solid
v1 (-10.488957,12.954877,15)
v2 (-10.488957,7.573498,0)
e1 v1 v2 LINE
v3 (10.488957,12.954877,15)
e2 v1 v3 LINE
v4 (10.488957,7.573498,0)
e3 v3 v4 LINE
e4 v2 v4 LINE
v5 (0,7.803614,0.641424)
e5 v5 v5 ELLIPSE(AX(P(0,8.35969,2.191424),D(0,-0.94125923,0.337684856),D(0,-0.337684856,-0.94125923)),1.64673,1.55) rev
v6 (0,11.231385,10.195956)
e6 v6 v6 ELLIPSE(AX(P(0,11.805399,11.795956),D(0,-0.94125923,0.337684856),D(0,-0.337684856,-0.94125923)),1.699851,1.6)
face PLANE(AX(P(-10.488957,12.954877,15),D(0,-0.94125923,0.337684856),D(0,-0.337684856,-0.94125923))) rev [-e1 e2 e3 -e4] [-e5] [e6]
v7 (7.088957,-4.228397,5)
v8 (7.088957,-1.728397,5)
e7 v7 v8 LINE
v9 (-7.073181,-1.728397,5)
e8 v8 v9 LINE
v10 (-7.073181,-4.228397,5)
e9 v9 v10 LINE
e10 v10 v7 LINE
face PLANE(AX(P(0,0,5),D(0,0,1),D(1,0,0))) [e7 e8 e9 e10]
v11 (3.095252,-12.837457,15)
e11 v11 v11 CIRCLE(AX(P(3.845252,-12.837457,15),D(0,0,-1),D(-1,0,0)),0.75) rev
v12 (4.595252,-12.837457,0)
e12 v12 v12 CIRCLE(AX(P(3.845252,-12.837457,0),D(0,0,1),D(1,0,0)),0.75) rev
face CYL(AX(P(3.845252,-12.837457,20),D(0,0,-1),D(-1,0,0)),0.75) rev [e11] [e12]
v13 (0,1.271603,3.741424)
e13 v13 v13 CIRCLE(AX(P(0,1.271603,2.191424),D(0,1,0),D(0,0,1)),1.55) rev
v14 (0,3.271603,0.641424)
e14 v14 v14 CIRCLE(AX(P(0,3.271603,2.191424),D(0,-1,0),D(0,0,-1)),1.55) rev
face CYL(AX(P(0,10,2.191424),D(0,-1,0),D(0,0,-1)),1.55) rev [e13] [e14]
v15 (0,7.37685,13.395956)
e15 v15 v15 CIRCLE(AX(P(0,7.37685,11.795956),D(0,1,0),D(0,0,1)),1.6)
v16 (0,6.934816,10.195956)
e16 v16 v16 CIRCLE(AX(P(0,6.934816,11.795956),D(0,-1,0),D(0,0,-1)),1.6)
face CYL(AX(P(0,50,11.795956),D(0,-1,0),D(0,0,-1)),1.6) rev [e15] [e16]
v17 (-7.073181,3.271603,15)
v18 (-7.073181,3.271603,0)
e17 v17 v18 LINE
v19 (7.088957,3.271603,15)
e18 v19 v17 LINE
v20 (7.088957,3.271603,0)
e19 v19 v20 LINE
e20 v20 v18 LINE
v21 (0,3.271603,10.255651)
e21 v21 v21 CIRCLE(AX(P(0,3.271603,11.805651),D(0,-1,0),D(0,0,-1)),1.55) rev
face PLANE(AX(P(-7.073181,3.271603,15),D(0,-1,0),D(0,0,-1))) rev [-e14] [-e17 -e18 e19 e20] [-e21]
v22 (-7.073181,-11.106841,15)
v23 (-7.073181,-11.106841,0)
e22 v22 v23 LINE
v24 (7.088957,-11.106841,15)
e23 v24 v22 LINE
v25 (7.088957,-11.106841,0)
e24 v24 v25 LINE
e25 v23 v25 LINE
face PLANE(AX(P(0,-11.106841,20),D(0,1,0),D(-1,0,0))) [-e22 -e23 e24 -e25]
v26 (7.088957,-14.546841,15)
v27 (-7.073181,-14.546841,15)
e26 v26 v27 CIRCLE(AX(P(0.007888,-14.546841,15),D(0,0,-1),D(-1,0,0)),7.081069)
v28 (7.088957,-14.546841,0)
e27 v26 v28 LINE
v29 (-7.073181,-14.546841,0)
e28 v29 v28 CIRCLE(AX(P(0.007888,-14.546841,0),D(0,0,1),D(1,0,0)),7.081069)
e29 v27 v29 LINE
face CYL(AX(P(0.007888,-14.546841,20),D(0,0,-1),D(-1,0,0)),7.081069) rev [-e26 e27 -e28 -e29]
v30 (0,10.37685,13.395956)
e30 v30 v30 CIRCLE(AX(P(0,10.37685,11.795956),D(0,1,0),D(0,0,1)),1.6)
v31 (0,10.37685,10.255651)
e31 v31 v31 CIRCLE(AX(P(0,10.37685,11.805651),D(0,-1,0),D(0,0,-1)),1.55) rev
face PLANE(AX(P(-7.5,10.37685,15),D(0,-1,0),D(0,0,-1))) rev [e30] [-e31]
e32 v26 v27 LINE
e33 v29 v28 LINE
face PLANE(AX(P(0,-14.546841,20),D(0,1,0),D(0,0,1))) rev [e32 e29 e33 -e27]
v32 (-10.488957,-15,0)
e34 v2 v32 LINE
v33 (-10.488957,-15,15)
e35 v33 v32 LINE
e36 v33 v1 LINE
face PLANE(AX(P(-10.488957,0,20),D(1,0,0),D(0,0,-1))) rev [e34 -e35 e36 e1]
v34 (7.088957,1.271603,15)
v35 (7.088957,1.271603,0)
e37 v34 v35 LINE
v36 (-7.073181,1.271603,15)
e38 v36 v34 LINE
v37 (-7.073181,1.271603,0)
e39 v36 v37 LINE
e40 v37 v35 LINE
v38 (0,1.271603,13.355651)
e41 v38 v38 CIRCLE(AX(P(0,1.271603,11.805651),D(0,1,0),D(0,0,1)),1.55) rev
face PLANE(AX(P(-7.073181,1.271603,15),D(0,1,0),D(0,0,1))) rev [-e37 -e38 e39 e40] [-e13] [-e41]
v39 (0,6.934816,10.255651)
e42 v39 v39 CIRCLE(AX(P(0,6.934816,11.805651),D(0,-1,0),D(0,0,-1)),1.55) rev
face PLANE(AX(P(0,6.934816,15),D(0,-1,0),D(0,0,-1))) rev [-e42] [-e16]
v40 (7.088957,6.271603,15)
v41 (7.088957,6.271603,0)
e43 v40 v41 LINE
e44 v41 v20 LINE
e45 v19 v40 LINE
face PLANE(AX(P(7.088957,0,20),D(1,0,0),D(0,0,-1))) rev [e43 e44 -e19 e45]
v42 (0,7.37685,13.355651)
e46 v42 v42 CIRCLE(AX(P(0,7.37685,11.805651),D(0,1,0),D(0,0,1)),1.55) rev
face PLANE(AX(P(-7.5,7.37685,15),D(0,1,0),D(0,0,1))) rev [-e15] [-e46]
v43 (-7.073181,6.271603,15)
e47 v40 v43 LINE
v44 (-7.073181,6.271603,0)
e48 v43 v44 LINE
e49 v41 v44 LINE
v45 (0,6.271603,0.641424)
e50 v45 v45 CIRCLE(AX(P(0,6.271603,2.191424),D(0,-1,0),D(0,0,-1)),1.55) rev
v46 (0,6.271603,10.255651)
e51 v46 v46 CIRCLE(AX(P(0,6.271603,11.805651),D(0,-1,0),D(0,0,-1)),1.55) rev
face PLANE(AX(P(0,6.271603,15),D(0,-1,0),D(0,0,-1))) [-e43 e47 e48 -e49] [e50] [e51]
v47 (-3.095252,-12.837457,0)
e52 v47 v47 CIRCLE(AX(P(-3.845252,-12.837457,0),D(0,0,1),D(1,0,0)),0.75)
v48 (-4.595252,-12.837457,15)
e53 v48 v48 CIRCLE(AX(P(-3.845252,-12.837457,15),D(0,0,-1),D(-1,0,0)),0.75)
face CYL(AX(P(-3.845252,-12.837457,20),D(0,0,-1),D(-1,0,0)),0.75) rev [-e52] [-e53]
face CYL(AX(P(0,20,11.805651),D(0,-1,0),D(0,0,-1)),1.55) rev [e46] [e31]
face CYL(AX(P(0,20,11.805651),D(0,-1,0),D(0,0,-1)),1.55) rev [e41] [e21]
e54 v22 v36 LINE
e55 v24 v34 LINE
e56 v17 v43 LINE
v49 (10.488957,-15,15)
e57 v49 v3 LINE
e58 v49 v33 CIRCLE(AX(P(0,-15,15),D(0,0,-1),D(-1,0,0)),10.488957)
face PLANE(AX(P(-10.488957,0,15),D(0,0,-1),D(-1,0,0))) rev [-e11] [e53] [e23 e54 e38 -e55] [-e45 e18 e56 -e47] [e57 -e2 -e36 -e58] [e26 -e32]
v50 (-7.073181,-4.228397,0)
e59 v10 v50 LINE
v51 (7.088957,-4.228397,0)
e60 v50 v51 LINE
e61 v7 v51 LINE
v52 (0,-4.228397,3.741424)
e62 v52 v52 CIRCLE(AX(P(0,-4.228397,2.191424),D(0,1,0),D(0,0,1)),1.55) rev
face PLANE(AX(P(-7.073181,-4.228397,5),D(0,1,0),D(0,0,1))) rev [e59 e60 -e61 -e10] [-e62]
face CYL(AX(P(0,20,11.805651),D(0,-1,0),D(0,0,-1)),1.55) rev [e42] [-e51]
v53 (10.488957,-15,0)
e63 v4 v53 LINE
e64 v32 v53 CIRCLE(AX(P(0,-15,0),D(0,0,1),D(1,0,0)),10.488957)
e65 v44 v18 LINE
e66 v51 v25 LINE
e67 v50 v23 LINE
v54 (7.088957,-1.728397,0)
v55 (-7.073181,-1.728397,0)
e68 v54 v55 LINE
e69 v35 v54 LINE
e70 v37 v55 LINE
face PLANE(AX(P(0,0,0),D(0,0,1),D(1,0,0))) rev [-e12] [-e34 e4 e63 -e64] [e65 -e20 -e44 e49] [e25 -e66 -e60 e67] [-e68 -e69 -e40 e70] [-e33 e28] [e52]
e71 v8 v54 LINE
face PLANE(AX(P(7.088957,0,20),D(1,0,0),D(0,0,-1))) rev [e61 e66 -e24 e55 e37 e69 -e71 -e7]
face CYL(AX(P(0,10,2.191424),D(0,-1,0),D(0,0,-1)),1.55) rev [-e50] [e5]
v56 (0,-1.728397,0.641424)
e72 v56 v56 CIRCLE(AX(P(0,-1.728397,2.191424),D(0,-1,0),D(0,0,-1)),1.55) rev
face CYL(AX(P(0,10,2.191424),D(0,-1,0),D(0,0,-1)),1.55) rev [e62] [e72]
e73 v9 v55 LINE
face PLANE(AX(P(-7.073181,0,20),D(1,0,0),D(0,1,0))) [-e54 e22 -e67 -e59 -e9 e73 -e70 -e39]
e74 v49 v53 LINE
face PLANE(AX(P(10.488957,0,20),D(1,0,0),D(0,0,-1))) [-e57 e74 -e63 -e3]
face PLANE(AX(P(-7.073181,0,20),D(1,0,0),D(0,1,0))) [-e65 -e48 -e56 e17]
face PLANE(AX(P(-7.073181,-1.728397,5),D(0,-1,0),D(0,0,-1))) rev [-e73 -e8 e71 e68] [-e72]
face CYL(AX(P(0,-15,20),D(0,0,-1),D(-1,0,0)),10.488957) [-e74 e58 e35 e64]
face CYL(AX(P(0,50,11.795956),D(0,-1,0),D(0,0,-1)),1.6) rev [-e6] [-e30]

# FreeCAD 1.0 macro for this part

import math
import FreeCAD as App
import Part
import Sketcher

V = App.Vector


def add_polygon(sketch, points):
    """Adds a closed chain of lines whose ends are joined by coincident constraints."""
    first, n = sketch.GeometryCount, len(points)
    for a, b in zip(points, points[1:] + points[:1]):
        sketch.addGeometry(Part.LineSegment(App.Vector(*a, 0), App.Vector(*b, 0)), False)
    for i in range(n):
        sketch.addConstraint(Sketcher.Constraint("Coincident", first + i, 2, first + (i + 1) % n, 1))

doc = App.newDocument("Part")
params = doc.addObject("Spreadsheet::Sheet", "Params")
for row, (alias, value) in enumerate([
    ("sketch1_diameter", "1.5 mm"),
    ("sketch1_height", "15 mm"),
    ("pad1_length", "20 mm"),
    ("sketch2_height", "20 mm"),
    ("pad2_length", "23 mm"),
    ("pocket1_length", "23 mm"),
    ("pad3_length", "20 mm"),
    ("sketch5_diameter", "3.2 mm"),
    ("pocket2_length", "50 mm"),
    ("sketch6_width", "15 mm"),
    ("sketch6_height", "3 mm"),
    ("pocket3_length", "50 mm"),
    ("sketch7_width", "8 mm"),
    ("sketch7_height", "3.4 mm"),
    ("pad4_length", "20 mm"),
    ("sketch8_radius", "4 mm"),
    ("pocket4_length", "15 mm"),
    ("sketch9_radius", "1.5 mm"),
    ("sketch9_height", "10 mm"),
    ("pocket5_length", "15 mm"),
    ("sketch10_radius", "4 mm"),
    ("pad5_length", "15 mm"),
    ("sketch15_height", "2 mm"),
    ("pad6_length", "15 mm"),
    ("sketch16_width", "15 mm"),
    ("sketch16_height", "3 mm"),
    ("pad7_length", "15 mm"),
    ("sketch18_diameter", "3.1 mm"),
    ("pocket11_length", "20 mm"),
    ("sketch20_height", "2.5 mm"),
    ("pad8_length", "5 mm"),
    ("sketch21_diameter", "3.1 mm"),
    ("pocket13_length", "20 mm"),
], start=1):
    params.set(f"A{row}", alias)
    params.set(f"B{row}", "=" + value)
    params.setAlias(f"B{row}", alias)

body = doc.addObject("PartDesign::Body", "Body")

# Sketch on XY plane
sketch1 = body.newObject("Sketcher::SketchObject", "Sketch")
sketch1.AttachmentSupport = (doc.getObject("XY_Plane"), [""])
sketch1.MapMode = "FlatFace"
sketch1.addGeometry(Part.LineSegment(V(-10.5, 0, 0), V(-10.5, -15, 0)), False)  # 0
sketch1.addGeometry(Part.ArcOfCircle(Part.Circle(V(0, -15, 0), V(0, 0, 1), 10.5), math.radians(180), math.radians(360)), False)  # 1
sketch1.addGeometry(Part.LineSegment(V(10.5, -15, 0), V(10.5, 0, 0)), False)  # 2
sketch1.addGeometry(Part.ArcOfCircle(Part.Circle(V(0, 0, 0), V(0, 0, 1), 10.5), math.radians(0), math.radians(180)), False)  # 3
sketch1.addGeometry(Part.Circle(V(-3.8, -12.8, 0), V(0, 0, 1), 0.8), False)  # 4
sketch1.addGeometry(Part.ArcOfCircle(Part.Circle(V(0, -14.5, 0), V(0, 0, 1), 7.1), math.radians(180), math.radians(360)), False)  # 5
sketch1.addGeometry(Part.LineSegment(V(-7.1, -14.5, 0), V(7.1, -14.5, 0)), False)  # 6
add_polygon(sketch1, [(7.1, -6.2), (7.1, -11.1), (-7.1, -11.1), (-7.1, -6.2)])  # lines 7-10
sketch1.addGeometry(Part.Circle(V(3.8, -12.8, 0), V(0, 0, 1), 0.8), False)  # 11
sketch1.addGeometry(Part.LineSegment(V(7.1, -0.4, 0), V(7.1, -2.8, 0)), False)  # 12
sketch1.addGeometry(Part.LineSegment(V(7.1, -2.8, 0), V(-7.1, -2.8, 0)), False)  # 13
sketch1.addGeometry(Part.LineSegment(V(-7.1, -2.8, 0), V(-7.1, -0.4, 0)), False)  # 14
sketch1.addGeometry(Part.ArcOfCircle(Part.Circle(V(0, -0.4, 0), V(0, 0, 1), 7.1), math.radians(0), math.radians(180)), False)  # 15
sketch1.addConstraint([
    Sketcher.Constraint("Tangent", 0, 2, 1, 1),
    Sketcher.Constraint("Tangent", 1, 2, 2, 1),
    Sketcher.Constraint("Tangent", 2, 2, 3, 1),
    Sketcher.Constraint("Tangent", 3, 2, 0, 1),
    Sketcher.Constraint("Coincident", 5, 1, 6, 1),
    Sketcher.Constraint("Coincident", 6, 2, 5, 2),
    Sketcher.Constraint("Coincident", 12, 2, 13, 1),
    Sketcher.Constraint("Coincident", 13, 2, 14, 1),
    Sketcher.Constraint("Tangent", 14, 2, 15, 2),
    Sketcher.Constraint("Tangent", 15, 1, 12, 1),
    Sketcher.Constraint("Vertical", 0),
    Sketcher.Constraint("Vertical", 2),
    Sketcher.Constraint("Horizontal", 6),
    Sketcher.Constraint("Vertical", 7),
    Sketcher.Constraint("Horizontal", 8),
    Sketcher.Constraint("Vertical", 9),
    Sketcher.Constraint("Horizontal", 10),
    Sketcher.Constraint("Vertical", 12),
    Sketcher.Constraint("Horizontal", 13),
    Sketcher.Constraint("Vertical", 14),
    Sketcher.Constraint("Coincident", 3, 3, -1, 1),
    Sketcher.Constraint("Equal", 4, 11),
    Sketcher.Constraint("Equal", 5, 15),
    Sketcher.Constraint("Symmetric", 4, 3, 11, 3, -2),
    Sketcher.Constraint("Vertical", 5, 3, 15, 3),
    Sketcher.Constraint("Vertical", 6, 2, 7, 2),
    Sketcher.Constraint("Vertical", 5, 1, 8, 2),
    Sketcher.Constraint("Diameter", 4, 1.5),
    Sketcher.Constraint("DistanceY", 0, 2, 0, 1, 15.0),
    Sketcher.Constraint("DistanceX", 6, 2, 1, 2, 3.4),
    Sketcher.Constraint("DistanceY", 10, 2, 12, 2, 3.4),
    Sketcher.Constraint("Radius", 5, 7.081069),
    Sketcher.Constraint("DistanceY", 6, 2, 7, 2, 3.44),
    Sketcher.Constraint("DistanceY", 5, 3, 7, 2, 3.44),
    Sketcher.Constraint("Radius", 1, 10.488957),
    Sketcher.Constraint("DistanceY", 7, 2, 7, 1, 4.929512),
    Sketcher.Constraint("DistanceY", 12, 2, 12, 1, 2.344077),
    Sketcher.Constraint("DistanceY", 5, 3, -1, 1, 14.546841),
    Sketcher.Constraint("DistanceX", 4, 3, 5, 3, 3.85314),
    Sketcher.Constraint("DistanceY", 4, 3, -1, 1, 12.837457),
])
sketch1.setExpression("Constraints[31]", "Params.sketch1_diameter")
sketch1.setExpression("Constraints[32]", "Params.sketch1_height")
pad1 = body.newObject("PartDesign::Pad", "Pad")
pad1.Profile = sketch1
pad1.setExpression("Length", "Params.pad1_length")
body2 = doc.addObject("PartDesign::Body", "Body001")

# Sketch on YZ plane
sketch2 = body2.newObject("Sketcher::SketchObject", "Sketch001")
sketch2.AttachmentSupport = (doc.getObject("YZ_Plane001"), [""])
sketch2.MapMode = "FlatFace"
sketch2.AttachmentOffset = App.Placement(V(0, 0, -11), App.Rotation())
add_polygon(sketch2, [(13.8, 20), (10.5, 20), (10.5, 0)])  # lines 0-2
sketch2.addConstraint([
    Sketcher.Constraint("Horizontal", 0),
    Sketcher.Constraint("Vertical", 1),
    Sketcher.Constraint("PointOnObject", 1, 2, -1),
    Sketcher.Constraint("DistanceY", 1, 2, 1, 1, 20.0),
    Sketcher.Constraint("DistanceX", 0, 2, 0, 1, 3.287893),
    Sketcher.Constraint("DistanceX", -1, 1, 2, 2, 13.77685),
])
sketch2.setExpression("Constraints[6]", "Params.sketch2_height")
pad2 = body2.newObject("PartDesign::Pad", "Pad001")
pad2.Profile = sketch2
pad2.setExpression("Length", "Params.pad2_length")

# Sketch on XY plane
sketch3 = body2.newObject("Sketcher::SketchObject", "Sketch002")
sketch3.AttachmentSupport = (doc.getObject("XY_Plane001"), [""])
sketch3.MapMode = "FlatFace"
add_polygon(sketch3, [(-10.5, 0), (-10.5, 15.9), (-12.5, 15.9), (-12.5, -0.7)])  # lines 0-3
add_polygon(sketch3, [(10.5, 17.1), (10.5, 0), (14.1, 0), (14.5, 17.1)])  # lines 4-7
sketch3.addConstraint([
    Sketcher.Constraint("Vertical", 0),
    Sketcher.Constraint("Horizontal", 1),
    Sketcher.Constraint("Vertical", 2),
    Sketcher.Constraint("Vertical", 4),
    Sketcher.Constraint("Horizontal", 5),
    Sketcher.Constraint("Horizontal", 7),
    Sketcher.Constraint("Symmetric", 3, 2, 4, 2, -1, 1),
    Sketcher.Constraint("PointOnObject", 3, 2, -1),
    Sketcher.Constraint("DistanceY", 2, 2, 2, 1, 16.556112),
    Sketcher.Constraint("Distance", 3, 2.11498),
    Sketcher.Constraint("Distance", 6, 17.144761),
    Sketcher.Constraint("DistanceX", 1, 2, 1, 1, 1.997235),
    Sketcher.Constraint("DistanceX", 5, 1, 5, 2, 3.596953),
    Sketcher.Constraint("DistanceX", 7, 2, 7, 1, 3.962834),
    Sketcher.Constraint("DistanceX", 1, 2, -1, 1, 12.486192),
])
pocket1 = body2.newObject("PartDesign::Pocket", "Pocket")
pocket1.Profile = sketch3
pocket1.setExpression("Length", "Params.pocket1_length")
pocket1.Reversed = True
body.AllowCompound = True
doc.recompute()

boolean = body.newObject("PartDesign::Boolean", "Boolean")
boolean.Type = "Fuse"
boolean.addObjects([body2])

# Sketch on XY plane
sketch4 = body.newObject("Sketcher::SketchObject", "Sketch003")
sketch4.AttachmentSupport = (doc.getObject("XY_Plane"), [""])
sketch4.MapMode = "FlatFace"
add_polygon(sketch4, [(-10, 10), (-10, 0), (-4, 9), (3, 9), (10, 0), (10, 10)])  # lines 0-5
sketch4.addConstraint([
    Sketcher.Constraint("Vertical", 0),
    Sketcher.Constraint("Horizontal", 2),
    Sketcher.Constraint("Vertical", 4),
    Sketcher.Constraint("Horizontal", 5),
    Sketcher.Constraint("Symmetric", 0, 2, 3, 2, -1, 1),
    Sketcher.Constraint("PointOnObject", 0, 2, -1),
    Sketcher.Constraint("Distance", 1, 11.18715),
    Sketcher.Constraint("Distance", 3, 11.553552),
    Sketcher.Constraint("DistanceX", 2, 1, 2, 2, 7.400196),
    Sketcher.Constraint("DistanceX", 5, 2, 5, 1, 20.977914),
    Sketcher.Constraint("DistanceY", 0, 2, 0, 1, 10.488957),
])
pad3 = body.newObject("PartDesign::Pad", "Pad002")
pad3.Profile = sketch4
pad3.setExpression("Length", "Params.pad3_length")

# Sketch on XZ plane
sketch5 = body.newObject("Sketcher::SketchObject", "Sketch004")
sketch5.AttachmentSupport = (doc.getObject("XZ_Plane"), [""])
sketch5.MapMode = "FlatFace"
sketch5.addGeometry(Part.Circle(V(0, 11.8, 0), V(0, 0, 1), 1.6), False)
sketch5.addConstraint([
    Sketcher.Constraint("PointOnObject", 0, 3, -2),
    Sketcher.Constraint("Diameter", 0, 3.2),
    Sketcher.Constraint("DistanceY", -1, 1, 0, 3, 11.795956),
])
sketch5.setExpression("Constraints[1]", "Params.sketch5_diameter")
pocket2 = body.newObject("PartDesign::Pocket", "Pocket001")
pocket2.Profile = sketch5
pocket2.setExpression("Length", "Params.pocket2_length")

# Sketch on XY plane
sketch6 = body.newObject("Sketcher::SketchObject", "Sketch005")
sketch6.AttachmentSupport = (doc.getObject("XY_Plane"), [""])
sketch6.MapMode = "FlatFace"
sketch6.AttachmentOffset = App.Placement(V(0, 0, 9), App.Rotation())
add_polygon(sketch6, [(-7.5, 10.4), (-7.5, 7.4), (7.5, 7.4), (7.5, 10.4)])  # lines 0-3
sketch6.addConstraint([
    Sketcher.Constraint("Vertical", 0),
    Sketcher.Constraint("Horizontal", 1),
    Sketcher.Constraint("Vertical", 2),
    Sketcher.Constraint("Horizontal", 3),
    Sketcher.Constraint("DistanceX", 1, 1, 1, 2, 15.0),
    Sketcher.Constraint("DistanceY", 0, 2, 0, 1, 3.0),
    Sketcher.Constraint("DistanceX", 0, 2, -1, 1, 7.5),
    Sketcher.Constraint("DistanceY", -1, 1, 0, 2, 7.37685),
])
sketch6.setExpression("Constraints[8]", "Params.sketch6_width")
sketch6.setExpression("Constraints[9]", "Params.sketch6_height")
pocket3 = body.newObject("PartDesign::Pocket", "Pocket002")
pocket3.Profile = sketch6
pocket3.setExpression("Length", "Params.pocket3_length")
pocket3.Reversed = True

# Sketch on XY plane
sketch7 = body.newObject("Sketcher::SketchObject", "Sketch006")
sketch7.AttachmentSupport = (doc.getObject("XY_Plane"), [""])
sketch7.MapMode = "FlatFace"
add_polygon(sketch7, [(-4, -2.8), (-4, -6.2), (4, -6.2), (4, -2.8)])  # lines 0-3
sketch7.addConstraint([
    Sketcher.Constraint("Vertical", 0),
    Sketcher.Constraint("Horizontal", 1),
    Sketcher.Constraint("Vertical", 2),
    Sketcher.Constraint("Horizontal", 3),
    Sketcher.Constraint("DistanceX", 1, 1, 1, 2, 8.0),
    Sketcher.Constraint("DistanceY", 0, 2, 0, 1, 3.4),
    Sketcher.Constraint("DistanceX", 0, 2, -1, 1, 4.0),
    Sketcher.Constraint("DistanceY", 0, 2, -1, 1, 6.177329),
])
sketch7.setExpression("Constraints[8]", "Params.sketch7_width")
sketch7.setExpression("Constraints[9]", "Params.sketch7_height")
pad4 = body.newObject("PartDesign::Pad", "Pad003")
pad4.Profile = sketch7
pad4.setExpression("Length", "Params.pad4_length")
pad4.Reversed = True

# Sketch on XZ plane
sketch8 = body.newObject("Sketcher::SketchObject", "Sketch007")
sketch8.AttachmentSupport = (doc.getObject("XZ_Plane"), [""])
sketch8.MapMode = "FlatFace"
sketch8.addGeometry([
    Part.ArcOfCircle(Part.Circle(V(0, -27.9, 0), V(0, 0, 1), 4), math.radians(0), math.radians(180)),
    Part.LineSegment(V(-4, -27.9, 0), V(-5.7, -16, 0)),
    Part.LineSegment(V(-5.7, -16, 0), V(5.6, -15.5, 0)),
    Part.LineSegment(V(5.6, -15.5, 0), V(4, -27.9, 0)),
], False)
sketch8.addConstraint([
    Sketcher.Constraint("Coincident", 0, 2, 1, 1),
    Sketcher.Constraint("Coincident", 1, 2, 2, 1),
    Sketcher.Constraint("Coincident", 2, 2, 3, 1),
    Sketcher.Constraint("Coincident", 3, 2, 0, 1),
    Sketcher.Constraint("Symmetric", 0, 2, 3, 2, -2),
    Sketcher.Constraint("Radius", 0, 4.0),
    Sketcher.Constraint("Distance", 2, 11.23842),
    Sketcher.Constraint("DistanceY", 2, 2, -1, 1, 15.474391),
    Sketcher.Constraint("DistanceY", 0, 2, 1, 2, 11.94089),
    Sketcher.Constraint("DistanceY", 0, 3, 1, 2, 11.94089),
    Sketcher.Constraint("Distance", 1, 12.056976),
    Sketcher.Constraint("Distance", 3, 12.556024),
])
sketch8.setExpression("Constraints[5]", "Params.sketch8_radius")
pocket4 = body.newObject("PartDesign::Pocket", "Pocket003")
pocket4.Profile = sketch8
pocket4.setExpression("Length", "Params.pocket4_length")
pocket4.Reversed = True

# Sketch on XZ plane
sketch9 = body.newObject("Sketcher::SketchObject", "Sketch008")
sketch9.AttachmentSupport = (doc.getObject("XZ_Plane"), [""])
sketch9.MapMode = "FlatFace"
sketch9.addGeometry([
    Part.ArcOfCircle(Part.Circle(V(0, -10, 0), V(0, 0, 1), 1.5), math.radians(-1.35), math.radians(0)),  # 0
    Part.ArcOfCircle(Part.Circle(V(0, -10, 0), V(0, 0, 1), 1.5), math.radians(-179), math.radians(-1)),  # 1
    Part.ArcOfCircle(Part.Circle(V(0, -10, 0), V(0, 0, 1), 1.5), math.radians(180), math.radians(181.35)),  # 2
    Part.LineSegment(V(-1.5, -10, 0), V(-1.5, 0, 0)),  # 3
    Part.LineSegment(V(-1.5, 0, 0), V(1.5, 0, 0)),  # 4
    Part.LineSegment(V(1.5, 0, 0), V(1.5, -10, 0)),  # 5
], False)
sketch9.addConstraint([
    Sketcher.Constraint("Tangent", 0, 1, 1, 2),
    Sketcher.Constraint("Tangent", 1, 1, 2, 2),
    Sketcher.Constraint("Tangent", 2, 1, 3, 1),
    Sketcher.Constraint("Coincident", 3, 2, 4, 1),
    Sketcher.Constraint("Coincident", 4, 2, 5, 1),
    Sketcher.Constraint("Tangent", 5, 2, 0, 2),
    Sketcher.Constraint("Vertical", 3),
    Sketcher.Constraint("Horizontal", 4),
    Sketcher.Constraint("Vertical", 5),
    Sketcher.Constraint("Equal", 0, 2),
    Sketcher.Constraint("Symmetric", 3, 2, 4, 2, -1, 1),
    Sketcher.Constraint("Horizontal", 0, 1, 1, 1),
    Sketcher.Constraint("Horizontal", 1, 3, 2, 1),
    Sketcher.Constraint("Radius", 1, 1.5),
    Sketcher.Constraint("DistanceY", 3, 1, 3, 2, 10.0),
    Sketcher.Constraint("DistanceX", -1, 1, 0, 1, 1.499581),
])
sketch9.setExpression("Constraints[13]", "Params.sketch9_radius")
sketch9.setExpression("Constraints[14]", "Params.sketch9_height")
pocket5 = body.newObject("PartDesign::Pocket", "Pocket004")
pocket5.Profile = sketch9
pocket5.setExpression("Length", "Params.pocket5_length")
pocket5.Reversed = True

# Sketch on XZ plane
sketch10 = body.newObject("Sketcher::SketchObject", "Sketch009")
sketch10.AttachmentSupport = (doc.getObject("XZ_Plane"), [""])
sketch10.MapMode = "FlatFace"
sketch10.addGeometry([
    Part.LineSegment(V(-7.4, -19.2, 0), V(-4, -10, 0)),
    Part.ArcOfCircle(Part.Circle(V(0, -10, 0), V(0, 0, 1), 4), math.radians(180), math.radians(360)),
    Part.LineSegment(V(4, -10, 0), V(9.7, -17.5, 0)),
    Part.LineSegment(V(9.7, -17.5, 0), V(-7.4, -19.2, 0)),
], False)
sketch10.addConstraint([
    Sketcher.Constraint("Coincident", 0, 2, 1, 1),
    Sketcher.Constraint("Coincident", 1, 2, 2, 1),
    Sketcher.Constraint("Coincident", 2, 2, 3, 1),
    Sketcher.Constraint("Coincident", 3, 2, 0, 1),
    Sketcher.Constraint("Symmetric", 0, 2, 1, 2, -2),
    Sketcher.Constraint("Horizontal", 1, 3, 0, 2),
    Sketcher.Constraint("Radius", 1, 4.0),
    Sketcher.Constraint("DistanceY", 3, 2, -1, 1, 19.178498),
    Sketcher.Constraint("Distance", 0, 9.77886),
    Sketcher.Constraint("DistanceX", 3, 2, -1, 1, 7.439128),
    Sketcher.Constraint("Distance", 2, 9.392424),
    Sketcher.Constraint("Distance", 3, 17.188027),
])
sketch10.setExpression("Constraints[6]", "Params.sketch10_radius")
pocket6 = body.newObject("PartDesign::Pocket", "Pocket005")
pocket6.Profile = sketch10
pocket6.Type = "ThroughAll"
pocket6.Midplane = True

# Sketch on YZ plane
sketch11 = body.newObject("Sketcher::SketchObject", "Sketch010")
sketch11.AttachmentSupport = (doc.getObject("YZ_Plane"), [""])
sketch11.MapMode = "FlatFace"
add_polygon(sketch11, [(15, 27), (-28, 23), (-25, 15), (14, 15)])  # lines 0-3
sketch11.addConstraint([
    Sketcher.Constraint("Horizontal", 2),
    Sketcher.Constraint("DistanceY", -1, 1, 1, 2, 15.0),
    Sketcher.Constraint("Distance", 3, 11.852401),
    Sketcher.Constraint("DistanceX", 2, 1, 2, 2, 39.212879),
    Sketcher.Constraint("DistanceX", 2, 2, 3, 2, 1.698599),
    Sketcher.Constraint("Distance", 1, 8.563668),
    Sketcher.Constraint("DistanceX", -1, 1, 2, 2, 13.723922),
    Sketcher.Constraint("DistanceX", 0, 2, 1, 2, 2.957251),
])
pocket7 = body.newObject("PartDesign::Pocket", "Pocket006")
pocket7.Profile = sketch11
pocket7.Type = "ThroughAll"
pocket7.Midplane = True

# Sketch on YZ plane
sketch12 = body.newObject("Sketcher::SketchObject", "Sketch011")
sketch12.AttachmentSupport = (doc.getObject("YZ_Plane"), [""])
sketch12.MapMode = "FlatFace"
add_polygon(sketch12, [(13, 15), (7.6, 0), (8.8, -5.5), (13.5, -5.5), (14, 15.1)])  # lines 0-4
sketch12.addConstraint([
    Sketcher.Constraint("Horizontal", 2),
    Sketcher.Constraint("PointOnObject", 0, 2, -1),
    Sketcher.Constraint("DistanceY", -1, 1, 4, 2, 15.0),
    Sketcher.Constraint("Distance", 0, 15.936099),
    Sketcher.Constraint("DistanceX", 2, 1, 2, 2, 4.67696),
    Sketcher.Constraint("Distance", 3, 20.671431),
    Sketcher.Constraint("Distance", 4, 1.045821),
    Sketcher.Constraint("DistanceX", -1, 1, 3, 2, 13.990721),
    Sketcher.Constraint("DistanceX", 2, 2, 3, 2, 0.489449),
    Sketcher.Constraint("Distance", 1, 5.661427),
])
pocket8 = body.newObject("PartDesign::Pocket", "Pocket007")
pocket8.Profile = sketch12
pocket8.Type = "ThroughAll"
pocket8.Midplane = True

# Sketch on XY plane
sketch13 = body.newObject("Sketcher::SketchObject", "Sketch012")
sketch13.AttachmentSupport = (doc.getObject("XY_Plane"), [""])
sketch13.MapMode = "FlatFace"
add_polygon(sketch13, [(-7, 7), (-7, -3), (7, -3), (7, 7)])  # lines 0-3
sketch13.addConstraint([
    Sketcher.Constraint("Vertical", 0),
    Sketcher.Constraint("Horizontal", 1),
    Sketcher.Constraint("Vertical", 2),
    Sketcher.Constraint("Horizontal", 3),
    Sketcher.Constraint("DistanceX", 1, 1, 1, 2, 14.162138),
    Sketcher.Constraint("DistanceY", 0, 2, 0, 1, 9.377105),
    Sketcher.Constraint("DistanceX", 0, 2, -1, 1, 7.073181),
    Sketcher.Constraint("DistanceY", 0, 2, -1, 1, 2.777329),
])
pocket9 = body.newObject("PartDesign::Pocket", "Pocket008")
pocket9.Profile = sketch13
pocket9.Type = "ThroughAll"
pocket9.Midplane = True

# Sketch on XY plane
sketch14 = body.newObject("Sketcher::SketchObject", "Sketch013")
sketch14.AttachmentSupport = (doc.getObject("XY_Plane"), [""])
sketch14.MapMode = "FlatFace"
add_polygon(sketch14, [(-7.1, 6.3), (7.1, 6.3), (7.1, 6.9), (-7.1, 6.9)])  # lines 0-3
sketch14.addConstraint([
    Sketcher.Constraint("Horizontal", 0),
    Sketcher.Constraint("Vertical", 1),
    Sketcher.Constraint("Horizontal", 2),
    Sketcher.Constraint("Vertical", 3),
    Sketcher.Constraint("DistanceX", 0, 1, 0, 2, 14.162138),
    Sketcher.Constraint("DistanceY", 1, 1, 1, 2, 0.663213),
    Sketcher.Constraint("DistanceX", 2, 2, -1, 1, 7.073181),
    Sketcher.Constraint("DistanceY", -1, 1, 0, 2, 6.271603),
])
pad5 = body.newObject("PartDesign::Pad", "Pad004")
pad5.Profile = sketch14
pad5.setExpression("Length", "Params.pad5_length")

# Sketch on XY plane
sketch15 = body.newObject("Sketcher::SketchObject", "Sketch014")
sketch15.AttachmentSupport = (doc.getObject("XY_Plane"), [""])
sketch15.MapMode = "FlatFace"
add_polygon(sketch15, [(-7.1, 3.3), (-7.1, 1.3), (7.1, 1.3), (7.1, 3.3)])  # lines 0-3
sketch15.addConstraint([
    Sketcher.Constraint("Vertical", 0),
    Sketcher.Constraint("Horizontal", 1),
    Sketcher.Constraint("Vertical", 2),
    Sketcher.Constraint("Horizontal", 3),
    Sketcher.Constraint("DistanceY", 0, 2, 0, 1, 2.0),
    Sketcher.Constraint("DistanceX", 1, 1, 1, 2, 14.162138),
    Sketcher.Constraint("DistanceX", 0, 2, -1, 1, 7.073181),
    Sketcher.Constraint("DistanceY", -1, 1, 0, 2, 1.271603),
])
sketch15.setExpression("Constraints[8]", "Params.sketch15_height")
pad6 = body.newObject("PartDesign::Pad", "Pad005")
pad6.Profile = sketch15
pad6.setExpression("Length", "Params.pad6_length")

# Sketch on XY plane
sketch16 = body.newObject("Sketcher::SketchObject", "Sketch015")
sketch16.AttachmentSupport = (doc.getObject("XY_Plane"), [""])
sketch16.MapMode = "FlatFace"
add_polygon(sketch16, [(-7.5, 10.4), (-7.5, 7.4), (7.5, 7.4), (7.5, 10.4)])  # lines 0-3
sketch16.addConstraint([
    Sketcher.Constraint("Vertical", 0),
    Sketcher.Constraint("Horizontal", 1),
    Sketcher.Constraint("Vertical", 2),
    Sketcher.Constraint("Horizontal", 3),
    Sketcher.Constraint("DistanceX", 1, 1, 1, 2, 15.0),
    Sketcher.Constraint("DistanceY", 0, 2, 0, 1, 3.0),
    Sketcher.Constraint("DistanceX", 0, 2, -1, 1, 7.5),
    Sketcher.Constraint("DistanceY", -1, 1, 0, 2, 7.37685),
])
sketch16.setExpression("Constraints[8]", "Params.sketch16_width")
sketch16.setExpression("Constraints[9]", "Params.sketch16_height")
pad7 = body.newObject("PartDesign::Pad", "Pad006")
pad7.Profile = sketch16
pad7.setExpression("Length", "Params.pad7_length")

# Sketch on YZ plane
sketch17 = body.newObject("Sketcher::SketchObject", "Sketch016")
sketch17.AttachmentSupport = (doc.getObject("YZ_Plane"), [""])
sketch17.MapMode = "FlatFace"
add_polygon(sketch17, [(13, 15), (8, 0), (13, -3)])  # lines 0-2
sketch17.addConstraint([
    Sketcher.Constraint("Vertical", 2),
    Sketcher.Constraint("PointOnObject", 0, 2, -1),
    Sketcher.Constraint("DistanceY", -1, 1, 2, 2, 15.0),
    Sketcher.Constraint("DistanceY", 2, 1, 2, 2, 17.5343),
    Sketcher.Constraint("Distance", 0, 15.936099),
    Sketcher.Constraint("DistanceX", -1, 1, 0, 2, 7.573498),
])
pocket10 = body.newObject("PartDesign::Pocket", "Pocket009")
pocket10.Profile = sketch17
pocket10.Type = "ThroughAll"
pocket10.Midplane = True

# Sketch on XZ plane
sketch18 = body.newObject("Sketcher::SketchObject", "Sketch017")
sketch18.AttachmentSupport = (doc.getObject("XZ_Plane"), [""])
sketch18.MapMode = "FlatFace"
sketch18.addGeometry(Part.Circle(V(0, 11.8, 0), V(0, 0, 1), 1.6), False)
sketch18.addConstraint([
    Sketcher.Constraint("PointOnObject", 0, 3, -2),
    Sketcher.Constraint("Diameter", 0, 3.1),
    Sketcher.Constraint("DistanceY", -1, 1, 0, 3, 11.805651),
])
sketch18.setExpression("Constraints[1]", "Params.sketch18_diameter")
pocket11 = body.newObject("PartDesign::Pocket", "Pocket010")
pocket11.Profile = sketch18
pocket11.setExpression("Length", "Params.pocket11_length")

# Sketch on XY plane
sketch19 = body.newObject("Sketcher::SketchObject", "Sketch018")
sketch19.AttachmentSupport = (doc.getObject("XY_Plane"), [""])
sketch19.MapMode = "FlatFace"
add_polygon(sketch19, [(-7, 1), (-7, -11), (7, -11), (7, 1)])  # lines 0-3
sketch19.addConstraint([
    Sketcher.Constraint("Vertical", 0),
    Sketcher.Constraint("Horizontal", 1),
    Sketcher.Constraint("Vertical", 2),
    Sketcher.Constraint("Horizontal", 3),
    Sketcher.Constraint("DistanceX", 1, 1, 1, 2, 14.162138),
    Sketcher.Constraint("DistanceY", 0, 2, 0, 1, 12.378444),
    Sketcher.Constraint("DistanceX", 0, 2, -1, 1, 7.073181),
    Sketcher.Constraint("DistanceY", 0, 2, -1, 1, 11.106841),
])
pocket12 = body.newObject("PartDesign::Pocket", "Pocket011")
pocket12.Profile = sketch19
pocket12.Type = "ThroughAll"
pocket12.Midplane = True

# Sketch on XY plane
sketch20 = body.newObject("Sketcher::SketchObject", "Sketch019")
sketch20.AttachmentSupport = (doc.getObject("XY_Plane"), [""])
sketch20.MapMode = "FlatFace"
add_polygon(sketch20, [(-7.1, -1.7), (-7.1, -4.2), (7.1, -4.2), (7.1, -1.7)])  # lines 0-3
sketch20.addConstraint([
    Sketcher.Constraint("Vertical", 0),
    Sketcher.Constraint("Horizontal", 1),
    Sketcher.Constraint("Vertical", 2),
    Sketcher.Constraint("Horizontal", 3),
    Sketcher.Constraint("DistanceY", 0, 2, 0, 1, 2.5),
    Sketcher.Constraint("DistanceX", 1, 1, 1, 2, 14.162138),
    Sketcher.Constraint("DistanceX", 0, 2, -1, 1, 7.073181),
    Sketcher.Constraint("DistanceY", 0, 2, -1, 1, 4.228397),
])
sketch20.setExpression("Constraints[8]", "Params.sketch20_height")
pad8 = body.newObject("PartDesign::Pad", "Pad007")
pad8.Profile = sketch20
pad8.setExpression("Length", "Params.pad8_length")

# Sketch on XZ plane
sketch21 = body.newObject("Sketcher::SketchObject", "Sketch020")
sketch21.AttachmentSupport = (doc.getObject("XZ_Plane"), [""])
sketch21.MapMode = "FlatFace"
sketch21.AttachmentOffset = App.Placement(V(0, 0, 10), App.Rotation())
sketch21.addGeometry(Part.Circle(V(0, 2.2, 0), V(0, 0, 1), 1.6), False)
sketch21.addConstraint([
    Sketcher.Constraint("PointOnObject", 0, 3, -2),
    Sketcher.Constraint("Diameter", 0, 3.1),
    Sketcher.Constraint("DistanceY", -1, 1, 0, 3, 2.191424),
])
sketch21.setExpression("Constraints[1]", "Params.sketch21_diameter")
pocket13 = body.newObject("PartDesign::Pocket", "Pocket012")
pocket13.Profile = sketch21
pocket13.setExpression("Length", "Params.pocket13_length")

doc.recompute()
